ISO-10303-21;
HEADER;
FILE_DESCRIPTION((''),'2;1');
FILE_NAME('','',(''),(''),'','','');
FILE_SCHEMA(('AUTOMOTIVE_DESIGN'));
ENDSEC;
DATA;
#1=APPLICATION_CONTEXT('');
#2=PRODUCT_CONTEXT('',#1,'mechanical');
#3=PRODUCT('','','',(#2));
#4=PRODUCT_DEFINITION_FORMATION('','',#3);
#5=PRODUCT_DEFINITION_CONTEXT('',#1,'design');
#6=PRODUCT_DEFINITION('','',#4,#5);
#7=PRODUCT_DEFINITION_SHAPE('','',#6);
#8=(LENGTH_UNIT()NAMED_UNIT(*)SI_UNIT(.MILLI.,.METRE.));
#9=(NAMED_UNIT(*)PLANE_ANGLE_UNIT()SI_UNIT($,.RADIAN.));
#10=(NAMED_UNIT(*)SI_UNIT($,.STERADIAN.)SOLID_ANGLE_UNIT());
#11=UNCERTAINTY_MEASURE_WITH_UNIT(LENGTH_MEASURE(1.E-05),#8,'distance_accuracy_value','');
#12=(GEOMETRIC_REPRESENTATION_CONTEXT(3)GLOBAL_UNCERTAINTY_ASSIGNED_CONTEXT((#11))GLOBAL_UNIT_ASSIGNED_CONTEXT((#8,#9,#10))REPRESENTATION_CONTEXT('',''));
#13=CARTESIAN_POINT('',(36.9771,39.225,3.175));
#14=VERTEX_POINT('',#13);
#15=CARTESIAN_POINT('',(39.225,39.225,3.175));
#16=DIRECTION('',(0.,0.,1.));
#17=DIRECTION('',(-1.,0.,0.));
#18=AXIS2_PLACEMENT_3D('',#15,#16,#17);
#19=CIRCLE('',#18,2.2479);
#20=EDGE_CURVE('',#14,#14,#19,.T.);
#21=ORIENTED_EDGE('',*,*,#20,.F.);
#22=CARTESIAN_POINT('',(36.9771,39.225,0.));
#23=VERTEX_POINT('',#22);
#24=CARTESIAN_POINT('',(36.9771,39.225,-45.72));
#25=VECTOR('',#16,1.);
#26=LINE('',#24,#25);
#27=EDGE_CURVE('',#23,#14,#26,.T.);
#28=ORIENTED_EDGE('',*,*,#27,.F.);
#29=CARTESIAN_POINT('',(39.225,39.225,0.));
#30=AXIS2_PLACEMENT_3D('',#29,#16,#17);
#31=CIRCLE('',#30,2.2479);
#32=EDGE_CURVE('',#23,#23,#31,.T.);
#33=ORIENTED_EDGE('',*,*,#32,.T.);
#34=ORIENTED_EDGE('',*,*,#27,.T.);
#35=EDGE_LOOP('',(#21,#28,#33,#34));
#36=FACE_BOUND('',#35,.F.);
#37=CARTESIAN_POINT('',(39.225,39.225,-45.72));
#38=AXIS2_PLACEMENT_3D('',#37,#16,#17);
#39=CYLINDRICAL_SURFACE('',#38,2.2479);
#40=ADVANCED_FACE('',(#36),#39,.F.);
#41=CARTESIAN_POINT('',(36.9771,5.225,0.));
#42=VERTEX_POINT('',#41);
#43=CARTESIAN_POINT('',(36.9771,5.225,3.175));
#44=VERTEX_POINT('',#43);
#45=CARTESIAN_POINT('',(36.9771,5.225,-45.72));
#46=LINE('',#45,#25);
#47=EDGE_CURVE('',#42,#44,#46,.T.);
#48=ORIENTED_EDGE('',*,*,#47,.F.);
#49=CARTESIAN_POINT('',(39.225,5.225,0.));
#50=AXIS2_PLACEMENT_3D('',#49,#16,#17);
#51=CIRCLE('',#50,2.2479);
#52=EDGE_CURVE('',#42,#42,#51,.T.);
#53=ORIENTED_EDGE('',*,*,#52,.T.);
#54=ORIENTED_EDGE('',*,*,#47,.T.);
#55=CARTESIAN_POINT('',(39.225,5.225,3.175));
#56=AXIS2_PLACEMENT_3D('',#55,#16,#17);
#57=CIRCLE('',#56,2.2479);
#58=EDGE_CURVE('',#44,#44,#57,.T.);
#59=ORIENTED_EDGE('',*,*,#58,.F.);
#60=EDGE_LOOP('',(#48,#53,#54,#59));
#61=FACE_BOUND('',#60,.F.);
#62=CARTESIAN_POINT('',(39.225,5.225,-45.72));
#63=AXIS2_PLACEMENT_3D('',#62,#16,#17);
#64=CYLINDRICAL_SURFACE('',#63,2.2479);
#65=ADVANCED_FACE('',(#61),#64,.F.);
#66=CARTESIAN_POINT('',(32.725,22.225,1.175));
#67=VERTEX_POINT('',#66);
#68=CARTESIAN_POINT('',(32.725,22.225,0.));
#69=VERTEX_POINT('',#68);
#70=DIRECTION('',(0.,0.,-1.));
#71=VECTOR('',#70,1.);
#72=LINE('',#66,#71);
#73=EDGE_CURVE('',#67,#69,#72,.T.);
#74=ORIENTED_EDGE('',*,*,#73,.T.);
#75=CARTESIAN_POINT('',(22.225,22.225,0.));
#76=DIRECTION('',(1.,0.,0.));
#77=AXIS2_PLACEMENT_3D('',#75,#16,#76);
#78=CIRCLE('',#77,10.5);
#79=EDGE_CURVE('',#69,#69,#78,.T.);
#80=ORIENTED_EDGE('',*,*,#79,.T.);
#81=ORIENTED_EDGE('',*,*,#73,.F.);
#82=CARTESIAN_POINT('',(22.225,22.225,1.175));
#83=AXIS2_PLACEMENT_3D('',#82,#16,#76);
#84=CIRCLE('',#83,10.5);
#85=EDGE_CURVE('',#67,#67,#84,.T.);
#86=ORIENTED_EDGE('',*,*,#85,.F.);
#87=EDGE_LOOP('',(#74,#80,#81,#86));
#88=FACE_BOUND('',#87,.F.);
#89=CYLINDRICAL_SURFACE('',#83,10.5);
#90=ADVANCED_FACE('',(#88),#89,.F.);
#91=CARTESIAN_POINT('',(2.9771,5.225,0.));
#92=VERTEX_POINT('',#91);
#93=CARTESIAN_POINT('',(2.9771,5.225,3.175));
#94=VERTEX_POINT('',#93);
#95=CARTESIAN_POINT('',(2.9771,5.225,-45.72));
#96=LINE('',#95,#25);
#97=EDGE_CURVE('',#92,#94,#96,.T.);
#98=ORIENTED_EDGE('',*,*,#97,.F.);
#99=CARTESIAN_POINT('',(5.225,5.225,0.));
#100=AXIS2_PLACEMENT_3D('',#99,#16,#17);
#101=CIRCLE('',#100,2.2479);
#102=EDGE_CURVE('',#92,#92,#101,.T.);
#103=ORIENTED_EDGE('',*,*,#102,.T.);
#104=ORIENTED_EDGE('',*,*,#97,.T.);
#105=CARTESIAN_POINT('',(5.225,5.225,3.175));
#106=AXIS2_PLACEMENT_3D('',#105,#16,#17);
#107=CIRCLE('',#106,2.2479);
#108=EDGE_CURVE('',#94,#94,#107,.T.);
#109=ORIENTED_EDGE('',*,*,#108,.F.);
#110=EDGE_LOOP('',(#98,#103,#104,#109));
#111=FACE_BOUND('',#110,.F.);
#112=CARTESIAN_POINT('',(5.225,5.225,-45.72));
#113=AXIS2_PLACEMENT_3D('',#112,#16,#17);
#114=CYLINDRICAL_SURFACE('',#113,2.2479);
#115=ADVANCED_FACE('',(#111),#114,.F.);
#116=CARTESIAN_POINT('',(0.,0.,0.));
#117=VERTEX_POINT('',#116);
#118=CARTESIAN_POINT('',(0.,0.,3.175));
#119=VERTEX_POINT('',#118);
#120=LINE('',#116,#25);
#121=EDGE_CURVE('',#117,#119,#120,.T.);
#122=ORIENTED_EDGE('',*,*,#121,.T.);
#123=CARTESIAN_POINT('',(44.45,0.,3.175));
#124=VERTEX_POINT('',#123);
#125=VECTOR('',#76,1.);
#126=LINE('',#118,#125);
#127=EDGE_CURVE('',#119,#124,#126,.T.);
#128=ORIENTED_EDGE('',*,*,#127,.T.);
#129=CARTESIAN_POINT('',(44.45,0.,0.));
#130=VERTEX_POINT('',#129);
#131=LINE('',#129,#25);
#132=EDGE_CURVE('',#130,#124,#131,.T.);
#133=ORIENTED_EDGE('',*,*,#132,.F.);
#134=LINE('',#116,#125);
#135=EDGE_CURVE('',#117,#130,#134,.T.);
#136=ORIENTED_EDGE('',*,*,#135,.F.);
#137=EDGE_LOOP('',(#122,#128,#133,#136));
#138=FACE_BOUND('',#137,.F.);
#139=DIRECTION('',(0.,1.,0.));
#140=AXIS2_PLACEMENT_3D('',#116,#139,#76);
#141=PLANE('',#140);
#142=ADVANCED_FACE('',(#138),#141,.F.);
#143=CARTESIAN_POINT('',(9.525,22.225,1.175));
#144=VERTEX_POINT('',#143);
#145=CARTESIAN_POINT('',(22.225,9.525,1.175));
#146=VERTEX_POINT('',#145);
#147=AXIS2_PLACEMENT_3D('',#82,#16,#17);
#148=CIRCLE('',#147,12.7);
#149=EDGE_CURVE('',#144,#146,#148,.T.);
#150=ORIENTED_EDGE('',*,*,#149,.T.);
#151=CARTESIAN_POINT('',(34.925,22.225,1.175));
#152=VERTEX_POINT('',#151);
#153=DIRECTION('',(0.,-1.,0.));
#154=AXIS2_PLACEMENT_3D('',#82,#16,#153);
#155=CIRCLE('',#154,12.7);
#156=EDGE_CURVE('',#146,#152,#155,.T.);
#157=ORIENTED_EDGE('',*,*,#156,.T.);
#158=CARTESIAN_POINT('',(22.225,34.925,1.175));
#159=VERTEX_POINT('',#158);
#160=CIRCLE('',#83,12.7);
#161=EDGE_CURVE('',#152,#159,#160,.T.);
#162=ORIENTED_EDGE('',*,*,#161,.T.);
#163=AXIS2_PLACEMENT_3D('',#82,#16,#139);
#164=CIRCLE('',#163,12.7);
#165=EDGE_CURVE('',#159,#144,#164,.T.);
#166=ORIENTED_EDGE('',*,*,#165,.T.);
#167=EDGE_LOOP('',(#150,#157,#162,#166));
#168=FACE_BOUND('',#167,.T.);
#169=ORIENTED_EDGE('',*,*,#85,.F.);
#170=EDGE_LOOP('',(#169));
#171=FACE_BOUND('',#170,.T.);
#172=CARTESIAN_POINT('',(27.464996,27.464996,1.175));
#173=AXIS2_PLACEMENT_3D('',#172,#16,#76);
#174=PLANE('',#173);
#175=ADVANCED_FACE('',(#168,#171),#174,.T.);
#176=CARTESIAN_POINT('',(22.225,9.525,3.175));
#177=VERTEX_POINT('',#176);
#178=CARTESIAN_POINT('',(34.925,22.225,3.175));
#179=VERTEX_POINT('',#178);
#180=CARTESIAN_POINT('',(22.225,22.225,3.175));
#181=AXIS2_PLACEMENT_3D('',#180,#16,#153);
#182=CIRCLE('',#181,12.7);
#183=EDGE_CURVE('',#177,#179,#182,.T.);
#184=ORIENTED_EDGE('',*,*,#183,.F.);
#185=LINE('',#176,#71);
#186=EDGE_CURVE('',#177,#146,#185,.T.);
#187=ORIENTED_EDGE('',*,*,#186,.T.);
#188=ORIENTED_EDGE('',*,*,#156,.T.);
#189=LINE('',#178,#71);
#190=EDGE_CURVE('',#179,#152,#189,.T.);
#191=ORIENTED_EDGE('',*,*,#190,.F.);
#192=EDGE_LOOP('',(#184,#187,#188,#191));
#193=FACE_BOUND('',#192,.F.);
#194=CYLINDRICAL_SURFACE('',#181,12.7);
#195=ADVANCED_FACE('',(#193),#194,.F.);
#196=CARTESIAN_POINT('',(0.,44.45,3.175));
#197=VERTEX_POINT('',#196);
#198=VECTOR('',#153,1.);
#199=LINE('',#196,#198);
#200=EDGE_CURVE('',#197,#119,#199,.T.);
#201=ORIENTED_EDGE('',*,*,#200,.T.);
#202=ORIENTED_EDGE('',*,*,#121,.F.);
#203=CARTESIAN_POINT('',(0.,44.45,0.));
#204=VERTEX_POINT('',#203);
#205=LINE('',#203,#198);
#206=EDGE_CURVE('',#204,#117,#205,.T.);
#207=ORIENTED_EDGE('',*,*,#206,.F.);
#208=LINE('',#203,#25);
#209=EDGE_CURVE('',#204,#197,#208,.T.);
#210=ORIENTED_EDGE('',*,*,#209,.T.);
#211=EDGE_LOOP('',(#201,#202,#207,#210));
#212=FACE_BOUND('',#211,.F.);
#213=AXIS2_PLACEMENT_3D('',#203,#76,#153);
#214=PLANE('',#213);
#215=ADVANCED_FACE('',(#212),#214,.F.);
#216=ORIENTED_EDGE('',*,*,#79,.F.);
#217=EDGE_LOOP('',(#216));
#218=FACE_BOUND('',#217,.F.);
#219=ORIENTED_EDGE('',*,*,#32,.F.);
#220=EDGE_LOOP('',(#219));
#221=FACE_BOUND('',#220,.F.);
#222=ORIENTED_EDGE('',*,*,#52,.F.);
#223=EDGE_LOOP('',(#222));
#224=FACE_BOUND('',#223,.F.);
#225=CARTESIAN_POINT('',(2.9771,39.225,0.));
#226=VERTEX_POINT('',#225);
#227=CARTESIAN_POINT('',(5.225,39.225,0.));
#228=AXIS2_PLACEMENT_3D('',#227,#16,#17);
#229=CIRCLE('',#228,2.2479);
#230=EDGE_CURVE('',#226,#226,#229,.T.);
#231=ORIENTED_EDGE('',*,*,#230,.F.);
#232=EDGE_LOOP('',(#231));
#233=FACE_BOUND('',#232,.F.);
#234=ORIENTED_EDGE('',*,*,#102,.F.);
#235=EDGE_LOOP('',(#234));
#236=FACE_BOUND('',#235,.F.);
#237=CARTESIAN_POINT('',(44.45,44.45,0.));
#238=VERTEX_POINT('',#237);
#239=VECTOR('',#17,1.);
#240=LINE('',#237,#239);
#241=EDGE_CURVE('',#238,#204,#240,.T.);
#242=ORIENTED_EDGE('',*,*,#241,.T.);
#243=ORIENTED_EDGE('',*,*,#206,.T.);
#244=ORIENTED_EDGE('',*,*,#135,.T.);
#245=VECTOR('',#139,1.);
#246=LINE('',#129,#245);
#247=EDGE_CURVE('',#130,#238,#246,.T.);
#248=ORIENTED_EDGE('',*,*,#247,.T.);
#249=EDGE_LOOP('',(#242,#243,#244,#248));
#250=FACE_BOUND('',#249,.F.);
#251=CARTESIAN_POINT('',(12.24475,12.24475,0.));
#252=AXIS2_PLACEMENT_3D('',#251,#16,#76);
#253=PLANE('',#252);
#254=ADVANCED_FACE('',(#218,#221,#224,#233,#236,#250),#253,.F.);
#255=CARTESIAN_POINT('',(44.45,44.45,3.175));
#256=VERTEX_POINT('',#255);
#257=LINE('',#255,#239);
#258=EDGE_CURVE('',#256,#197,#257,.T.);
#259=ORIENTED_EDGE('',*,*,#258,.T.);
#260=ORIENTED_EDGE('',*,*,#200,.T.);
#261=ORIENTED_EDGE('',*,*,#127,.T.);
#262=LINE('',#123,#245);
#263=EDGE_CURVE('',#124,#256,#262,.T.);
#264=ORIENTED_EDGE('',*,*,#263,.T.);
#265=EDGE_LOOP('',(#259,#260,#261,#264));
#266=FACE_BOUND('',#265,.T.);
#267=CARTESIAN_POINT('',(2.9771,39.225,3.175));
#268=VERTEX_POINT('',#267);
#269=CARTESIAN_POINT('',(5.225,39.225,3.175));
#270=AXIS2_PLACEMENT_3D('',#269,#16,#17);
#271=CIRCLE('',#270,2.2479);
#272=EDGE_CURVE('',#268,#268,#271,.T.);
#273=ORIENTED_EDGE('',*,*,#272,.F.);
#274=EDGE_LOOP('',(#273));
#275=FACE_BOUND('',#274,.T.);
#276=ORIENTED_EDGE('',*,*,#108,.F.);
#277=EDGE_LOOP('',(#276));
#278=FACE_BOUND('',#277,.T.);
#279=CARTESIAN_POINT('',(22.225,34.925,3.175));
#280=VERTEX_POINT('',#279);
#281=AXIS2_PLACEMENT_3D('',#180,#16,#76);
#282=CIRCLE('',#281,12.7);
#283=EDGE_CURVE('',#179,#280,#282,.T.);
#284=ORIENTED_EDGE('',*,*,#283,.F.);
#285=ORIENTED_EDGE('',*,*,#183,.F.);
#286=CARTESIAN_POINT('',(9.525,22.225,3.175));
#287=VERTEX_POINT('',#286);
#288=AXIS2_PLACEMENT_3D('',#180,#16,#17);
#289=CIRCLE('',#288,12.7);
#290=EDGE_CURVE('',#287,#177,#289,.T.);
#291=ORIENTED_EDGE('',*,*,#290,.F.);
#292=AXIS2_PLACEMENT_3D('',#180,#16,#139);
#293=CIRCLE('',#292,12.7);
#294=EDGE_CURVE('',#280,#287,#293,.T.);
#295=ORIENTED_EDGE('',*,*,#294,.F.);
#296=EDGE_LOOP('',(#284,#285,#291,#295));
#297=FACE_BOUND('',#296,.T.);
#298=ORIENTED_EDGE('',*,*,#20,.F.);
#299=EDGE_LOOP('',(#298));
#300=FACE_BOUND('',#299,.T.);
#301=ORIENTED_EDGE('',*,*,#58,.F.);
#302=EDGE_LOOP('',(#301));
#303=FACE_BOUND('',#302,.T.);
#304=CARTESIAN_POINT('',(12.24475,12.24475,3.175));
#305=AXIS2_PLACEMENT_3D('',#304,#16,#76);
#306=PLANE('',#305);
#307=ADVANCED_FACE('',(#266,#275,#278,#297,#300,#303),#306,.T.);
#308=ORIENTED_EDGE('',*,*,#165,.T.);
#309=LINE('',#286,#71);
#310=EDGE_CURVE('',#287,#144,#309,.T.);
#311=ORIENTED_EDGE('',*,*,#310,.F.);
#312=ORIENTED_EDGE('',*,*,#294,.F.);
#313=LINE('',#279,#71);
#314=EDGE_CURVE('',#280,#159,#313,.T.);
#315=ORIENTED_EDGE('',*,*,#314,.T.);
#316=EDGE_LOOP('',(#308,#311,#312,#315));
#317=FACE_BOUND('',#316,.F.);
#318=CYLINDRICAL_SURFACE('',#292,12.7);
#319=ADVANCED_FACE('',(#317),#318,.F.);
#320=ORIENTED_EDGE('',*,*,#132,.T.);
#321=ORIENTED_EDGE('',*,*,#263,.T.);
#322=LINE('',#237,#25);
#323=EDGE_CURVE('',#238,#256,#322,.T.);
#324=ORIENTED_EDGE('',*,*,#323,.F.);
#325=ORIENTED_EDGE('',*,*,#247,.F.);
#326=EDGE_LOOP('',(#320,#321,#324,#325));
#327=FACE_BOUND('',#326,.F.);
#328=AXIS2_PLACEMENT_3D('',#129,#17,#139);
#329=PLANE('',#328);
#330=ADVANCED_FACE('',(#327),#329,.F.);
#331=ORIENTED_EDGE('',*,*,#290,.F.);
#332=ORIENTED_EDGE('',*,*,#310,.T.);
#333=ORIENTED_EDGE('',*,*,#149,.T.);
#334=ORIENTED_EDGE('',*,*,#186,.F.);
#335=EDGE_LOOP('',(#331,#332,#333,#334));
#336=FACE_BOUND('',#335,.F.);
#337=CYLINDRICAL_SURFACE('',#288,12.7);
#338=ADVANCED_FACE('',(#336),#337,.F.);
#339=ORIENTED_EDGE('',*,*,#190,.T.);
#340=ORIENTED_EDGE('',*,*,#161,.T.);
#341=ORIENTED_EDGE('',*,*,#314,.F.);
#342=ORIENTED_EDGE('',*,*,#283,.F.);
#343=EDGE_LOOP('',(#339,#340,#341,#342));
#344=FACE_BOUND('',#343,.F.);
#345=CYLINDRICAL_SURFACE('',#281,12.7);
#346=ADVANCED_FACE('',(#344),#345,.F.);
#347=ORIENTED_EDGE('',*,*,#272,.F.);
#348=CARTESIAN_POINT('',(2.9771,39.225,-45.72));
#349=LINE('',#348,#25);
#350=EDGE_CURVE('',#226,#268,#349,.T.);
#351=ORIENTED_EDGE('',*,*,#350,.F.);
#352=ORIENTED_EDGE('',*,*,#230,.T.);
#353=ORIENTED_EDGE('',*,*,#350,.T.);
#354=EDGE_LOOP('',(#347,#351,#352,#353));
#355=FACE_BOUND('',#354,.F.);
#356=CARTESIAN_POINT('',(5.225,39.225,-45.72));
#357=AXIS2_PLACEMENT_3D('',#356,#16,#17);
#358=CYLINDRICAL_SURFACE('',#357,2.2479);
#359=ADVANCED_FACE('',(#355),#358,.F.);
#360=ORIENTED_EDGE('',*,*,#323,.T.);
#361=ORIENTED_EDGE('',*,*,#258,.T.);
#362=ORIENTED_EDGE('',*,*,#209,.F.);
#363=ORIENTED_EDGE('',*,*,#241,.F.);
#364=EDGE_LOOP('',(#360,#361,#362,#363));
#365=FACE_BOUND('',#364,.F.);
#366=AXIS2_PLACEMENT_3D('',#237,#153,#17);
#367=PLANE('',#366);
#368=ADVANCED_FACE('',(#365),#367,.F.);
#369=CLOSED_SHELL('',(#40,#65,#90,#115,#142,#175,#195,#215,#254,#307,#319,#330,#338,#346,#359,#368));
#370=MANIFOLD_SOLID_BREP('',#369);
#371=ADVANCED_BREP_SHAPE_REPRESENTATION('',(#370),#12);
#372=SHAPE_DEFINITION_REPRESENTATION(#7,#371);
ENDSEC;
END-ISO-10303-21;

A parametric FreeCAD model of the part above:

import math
import FreeCAD as App
import Part
import Sketcher
from FreeCAD import Vector
Q = App.Units.Quantity

doc = App.newDocument("Part")
body = doc.addObject("PartDesign::Body", "Body")

# Sketch on XY plane
sketch1 = body.newObject("Sketcher::SketchObject", "Sketch")
sketch1.AttachmentSupport = (doc.getObject("XY_Plane"), [""])
sketch1.MapMode = "FlatFace"
sketch1.addGeometry(Part.LineSegment(Vector(0, 0, 0), Vector(44, 0, 0)), False)
sketch1.addGeometry(Part.LineSegment(Vector(44, 0, 0), Vector(44, 44, 0)), False)
sketch1.addGeometry(Part.LineSegment(Vector(44, 44, 0), Vector(0, 44, 0)), False)
sketch1.addGeometry(Part.LineSegment(Vector(0, 44, 0), Vector(0, 0, 0)), False)
sketch1.addConstraint(Sketcher.Constraint("Coincident", 0, 2, 1, 1))
sketch1.addConstraint(Sketcher.Constraint("Coincident", 1, 2, 2, 1))
sketch1.addConstraint(Sketcher.Constraint("Coincident", 2, 2, 3, 1))
sketch1.addConstraint(Sketcher.Constraint("Coincident", 3, 2, 0, 1))
sketch1.addConstraint(Sketcher.Constraint("Horizontal", 0))
sketch1.addConstraint(Sketcher.Constraint("Vertical", 1))
sketch1.addConstraint(Sketcher.Constraint("Horizontal", 2))
sketch1.addConstraint(Sketcher.Constraint("Vertical", 3))
sketch1.addConstraint(Sketcher.Constraint("Coincident", 3, 2, -1, 1))
sketch1.addConstraint(Sketcher.Constraint("Equal", 2, 1))
sketch1.addConstraint(Sketcher.Constraint("DistanceX", 0, 1, 0, 2, Q("1.75 in")))
pad1 = body.newObject("PartDesign::Pad", "Pad")
pad1.Profile = sketch1
pad1.Length = Q("0.125 in")

# Sketch on XY plane
sketch2 = body.newObject("Sketcher::SketchObject", "Sketch001")
sketch2.AttachmentSupport = (doc.getObject("XY_Plane"), [""])
sketch2.MapMode = "FlatFace"
sketch2.addGeometry(Part.Circle(Vector(5.2, 39.2, 0), Vector(0, 0, 1), 2.2), False)
sketch2.addGeometry(Part.Circle(Vector(39.2, 39.2, 0), Vector(0, 0, 1), 2.2), False)
sketch2.addGeometry(Part.Circle(Vector(39.2, 5.2, 0), Vector(0, 0, 1), 2.2), False)
sketch2.addGeometry(Part.Circle(Vector(5.2, 5.2, 0), Vector(0, 0, 1), 2.2), False)
sketch2.addConstraint(Sketcher.Constraint("Equal", 0, 1))
sketch2.addConstraint(Sketcher.Constraint("Equal", 1, 2))
sketch2.addConstraint(Sketcher.Constraint("Equal", 2, 3))
sketch2.addConstraint(Sketcher.Constraint("Horizontal", 0, 3, 1, 3))
sketch2.addConstraint(Sketcher.Constraint("Horizontal", 2, 3, 3, 3))
sketch2.addConstraint(Sketcher.Constraint("Vertical", 1, 3, 2, 3))
sketch2.addConstraint(Sketcher.Constraint("Vertical", 0, 3, 3, 3))
sketch2.addConstraint(Sketcher.Constraint("Diameter", 0, Q("0.177 in")))
sketch2.addConstraint(Sketcher.Constraint("DistanceX", -1, 1, 0, 3, 5.225))
sketch2.addConstraint(Sketcher.Constraint("DistanceY", -1, 1, 0, 3, 39.225))
sketch2.addConstraint(Sketcher.Constraint("DistanceX", -1, 1, 1, 3, 39.225))
sketch2.addConstraint(Sketcher.Constraint("DistanceY", -1, 1, 2, 3, 5.225))
doc.recompute()
hole = body.newObject("PartDesign::Hole", "Hole")
hole.Profile = sketch2
hole.ThreadType = "None"
hole.Diameter = Q("0.177 in")
hole.DepthType = "Dimension"
hole.Depth = Q("1.8 in")
hole.DrillPoint = "Angled"
hole.DrillPointAngle = 118
hole.Reversed = True

# Sketch on XY plane
sketch3 = body.newObject("Sketcher::SketchObject", "Sketch002")
sketch3.AttachmentSupport = (doc.getObject("XY_Plane"), [""])
sketch3.MapMode = "FlatFace"
sketch3.AttachmentOffset = App.Placement(Vector(0, 0, 0.125 * 25.4), App.Rotation())
sketch3.addGeometry(Part.ArcOfCircle(Part.Circle(Vector(22, 22, 0), Vector(0, 0, 1), 13), math.radians(0), math.radians(90)), False)
sketch3.addGeometry(Part.ArcOfCircle(Part.Circle(Vector(22, 22, 0), Vector(0, 0, 1), 13), math.radians(90), math.radians(180)), False)
sketch3.addGeometry(Part.ArcOfCircle(Part.Circle(Vector(22, 22, 0), Vector(0, 0, 1), 13), math.radians(180), math.radians(270)), False)
sketch3.addGeometry(Part.ArcOfCircle(Part.Circle(Vector(22, 22, 0), Vector(0, 0, 1), 13), math.radians(-90), math.radians(0)), False)
sketch3.addConstraint(Sketcher.Constraint("Tangent", 0, 2, 1, 1))
sketch3.addConstraint(Sketcher.Constraint("Tangent", 1, 2, 2, 1))
sketch3.addConstraint(Sketcher.Constraint("Tangent", 2, 2, 3, 1))
sketch3.addConstraint(Sketcher.Constraint("Tangent", 3, 2, 0, 1))
sketch3.addConstraint(Sketcher.Constraint("Equal", 0, 1))
sketch3.addConstraint(Sketcher.Constraint("Horizontal", 3, 3, 1, 2))
sketch3.addConstraint(Sketcher.Constraint("Horizontal", 1, 2, 3, 2))
sketch3.addConstraint(Sketcher.Constraint("Vertical", 3, 3, 0, 2))
sketch3.addConstraint(Sketcher.Constraint("Vertical", 0, 2, 2, 2))
sketch3.addConstraint(Sketcher.Constraint("Radius", 0, Q("0.5 in")))
sketch3.addConstraint(Sketcher.Constraint("DistanceX", -1, 1, 0, 3, Q("0.875 in")))
sketch3.addConstraint(Sketcher.Constraint("DistanceY", -1, 1, 0, 3, Q("0.875 in")))
pocket1 = body.newObject("PartDesign::Pocket", "Pocket")
pocket1.Profile = sketch3
pocket1.Length = 2

# Sketch on XY plane
sketch4 = body.newObject("Sketcher::SketchObject", "Sketch003")
sketch4.AttachmentSupport = (doc.getObject("XY_Plane"), [""])
sketch4.MapMode = "FlatFace"
sketch4.AttachmentOffset = App.Placement(Vector(0, 0, 1.175), App.Rotation())
sketch4.addGeometry(Part.Circle(Vector(22, 22, 0), Vector(0, 0, 1), 10), False)
sketch4.addConstraint(Sketcher.Constraint("Diameter", 0, 21.0))
sketch4.addConstraint(Sketcher.Constraint("DistanceX", -1, 1, 0, 3, Q("0.875 in")))
sketch4.addConstraint(Sketcher.Constraint("DistanceY", -1, 1, 0, 3, Q("0.875 in")))
pocket2 = body.newObject("PartDesign::Pocket", "Pocket001")
pocket2.Profile = sketch4
pocket2.Type = "ThroughAll"

doc.recompute()
